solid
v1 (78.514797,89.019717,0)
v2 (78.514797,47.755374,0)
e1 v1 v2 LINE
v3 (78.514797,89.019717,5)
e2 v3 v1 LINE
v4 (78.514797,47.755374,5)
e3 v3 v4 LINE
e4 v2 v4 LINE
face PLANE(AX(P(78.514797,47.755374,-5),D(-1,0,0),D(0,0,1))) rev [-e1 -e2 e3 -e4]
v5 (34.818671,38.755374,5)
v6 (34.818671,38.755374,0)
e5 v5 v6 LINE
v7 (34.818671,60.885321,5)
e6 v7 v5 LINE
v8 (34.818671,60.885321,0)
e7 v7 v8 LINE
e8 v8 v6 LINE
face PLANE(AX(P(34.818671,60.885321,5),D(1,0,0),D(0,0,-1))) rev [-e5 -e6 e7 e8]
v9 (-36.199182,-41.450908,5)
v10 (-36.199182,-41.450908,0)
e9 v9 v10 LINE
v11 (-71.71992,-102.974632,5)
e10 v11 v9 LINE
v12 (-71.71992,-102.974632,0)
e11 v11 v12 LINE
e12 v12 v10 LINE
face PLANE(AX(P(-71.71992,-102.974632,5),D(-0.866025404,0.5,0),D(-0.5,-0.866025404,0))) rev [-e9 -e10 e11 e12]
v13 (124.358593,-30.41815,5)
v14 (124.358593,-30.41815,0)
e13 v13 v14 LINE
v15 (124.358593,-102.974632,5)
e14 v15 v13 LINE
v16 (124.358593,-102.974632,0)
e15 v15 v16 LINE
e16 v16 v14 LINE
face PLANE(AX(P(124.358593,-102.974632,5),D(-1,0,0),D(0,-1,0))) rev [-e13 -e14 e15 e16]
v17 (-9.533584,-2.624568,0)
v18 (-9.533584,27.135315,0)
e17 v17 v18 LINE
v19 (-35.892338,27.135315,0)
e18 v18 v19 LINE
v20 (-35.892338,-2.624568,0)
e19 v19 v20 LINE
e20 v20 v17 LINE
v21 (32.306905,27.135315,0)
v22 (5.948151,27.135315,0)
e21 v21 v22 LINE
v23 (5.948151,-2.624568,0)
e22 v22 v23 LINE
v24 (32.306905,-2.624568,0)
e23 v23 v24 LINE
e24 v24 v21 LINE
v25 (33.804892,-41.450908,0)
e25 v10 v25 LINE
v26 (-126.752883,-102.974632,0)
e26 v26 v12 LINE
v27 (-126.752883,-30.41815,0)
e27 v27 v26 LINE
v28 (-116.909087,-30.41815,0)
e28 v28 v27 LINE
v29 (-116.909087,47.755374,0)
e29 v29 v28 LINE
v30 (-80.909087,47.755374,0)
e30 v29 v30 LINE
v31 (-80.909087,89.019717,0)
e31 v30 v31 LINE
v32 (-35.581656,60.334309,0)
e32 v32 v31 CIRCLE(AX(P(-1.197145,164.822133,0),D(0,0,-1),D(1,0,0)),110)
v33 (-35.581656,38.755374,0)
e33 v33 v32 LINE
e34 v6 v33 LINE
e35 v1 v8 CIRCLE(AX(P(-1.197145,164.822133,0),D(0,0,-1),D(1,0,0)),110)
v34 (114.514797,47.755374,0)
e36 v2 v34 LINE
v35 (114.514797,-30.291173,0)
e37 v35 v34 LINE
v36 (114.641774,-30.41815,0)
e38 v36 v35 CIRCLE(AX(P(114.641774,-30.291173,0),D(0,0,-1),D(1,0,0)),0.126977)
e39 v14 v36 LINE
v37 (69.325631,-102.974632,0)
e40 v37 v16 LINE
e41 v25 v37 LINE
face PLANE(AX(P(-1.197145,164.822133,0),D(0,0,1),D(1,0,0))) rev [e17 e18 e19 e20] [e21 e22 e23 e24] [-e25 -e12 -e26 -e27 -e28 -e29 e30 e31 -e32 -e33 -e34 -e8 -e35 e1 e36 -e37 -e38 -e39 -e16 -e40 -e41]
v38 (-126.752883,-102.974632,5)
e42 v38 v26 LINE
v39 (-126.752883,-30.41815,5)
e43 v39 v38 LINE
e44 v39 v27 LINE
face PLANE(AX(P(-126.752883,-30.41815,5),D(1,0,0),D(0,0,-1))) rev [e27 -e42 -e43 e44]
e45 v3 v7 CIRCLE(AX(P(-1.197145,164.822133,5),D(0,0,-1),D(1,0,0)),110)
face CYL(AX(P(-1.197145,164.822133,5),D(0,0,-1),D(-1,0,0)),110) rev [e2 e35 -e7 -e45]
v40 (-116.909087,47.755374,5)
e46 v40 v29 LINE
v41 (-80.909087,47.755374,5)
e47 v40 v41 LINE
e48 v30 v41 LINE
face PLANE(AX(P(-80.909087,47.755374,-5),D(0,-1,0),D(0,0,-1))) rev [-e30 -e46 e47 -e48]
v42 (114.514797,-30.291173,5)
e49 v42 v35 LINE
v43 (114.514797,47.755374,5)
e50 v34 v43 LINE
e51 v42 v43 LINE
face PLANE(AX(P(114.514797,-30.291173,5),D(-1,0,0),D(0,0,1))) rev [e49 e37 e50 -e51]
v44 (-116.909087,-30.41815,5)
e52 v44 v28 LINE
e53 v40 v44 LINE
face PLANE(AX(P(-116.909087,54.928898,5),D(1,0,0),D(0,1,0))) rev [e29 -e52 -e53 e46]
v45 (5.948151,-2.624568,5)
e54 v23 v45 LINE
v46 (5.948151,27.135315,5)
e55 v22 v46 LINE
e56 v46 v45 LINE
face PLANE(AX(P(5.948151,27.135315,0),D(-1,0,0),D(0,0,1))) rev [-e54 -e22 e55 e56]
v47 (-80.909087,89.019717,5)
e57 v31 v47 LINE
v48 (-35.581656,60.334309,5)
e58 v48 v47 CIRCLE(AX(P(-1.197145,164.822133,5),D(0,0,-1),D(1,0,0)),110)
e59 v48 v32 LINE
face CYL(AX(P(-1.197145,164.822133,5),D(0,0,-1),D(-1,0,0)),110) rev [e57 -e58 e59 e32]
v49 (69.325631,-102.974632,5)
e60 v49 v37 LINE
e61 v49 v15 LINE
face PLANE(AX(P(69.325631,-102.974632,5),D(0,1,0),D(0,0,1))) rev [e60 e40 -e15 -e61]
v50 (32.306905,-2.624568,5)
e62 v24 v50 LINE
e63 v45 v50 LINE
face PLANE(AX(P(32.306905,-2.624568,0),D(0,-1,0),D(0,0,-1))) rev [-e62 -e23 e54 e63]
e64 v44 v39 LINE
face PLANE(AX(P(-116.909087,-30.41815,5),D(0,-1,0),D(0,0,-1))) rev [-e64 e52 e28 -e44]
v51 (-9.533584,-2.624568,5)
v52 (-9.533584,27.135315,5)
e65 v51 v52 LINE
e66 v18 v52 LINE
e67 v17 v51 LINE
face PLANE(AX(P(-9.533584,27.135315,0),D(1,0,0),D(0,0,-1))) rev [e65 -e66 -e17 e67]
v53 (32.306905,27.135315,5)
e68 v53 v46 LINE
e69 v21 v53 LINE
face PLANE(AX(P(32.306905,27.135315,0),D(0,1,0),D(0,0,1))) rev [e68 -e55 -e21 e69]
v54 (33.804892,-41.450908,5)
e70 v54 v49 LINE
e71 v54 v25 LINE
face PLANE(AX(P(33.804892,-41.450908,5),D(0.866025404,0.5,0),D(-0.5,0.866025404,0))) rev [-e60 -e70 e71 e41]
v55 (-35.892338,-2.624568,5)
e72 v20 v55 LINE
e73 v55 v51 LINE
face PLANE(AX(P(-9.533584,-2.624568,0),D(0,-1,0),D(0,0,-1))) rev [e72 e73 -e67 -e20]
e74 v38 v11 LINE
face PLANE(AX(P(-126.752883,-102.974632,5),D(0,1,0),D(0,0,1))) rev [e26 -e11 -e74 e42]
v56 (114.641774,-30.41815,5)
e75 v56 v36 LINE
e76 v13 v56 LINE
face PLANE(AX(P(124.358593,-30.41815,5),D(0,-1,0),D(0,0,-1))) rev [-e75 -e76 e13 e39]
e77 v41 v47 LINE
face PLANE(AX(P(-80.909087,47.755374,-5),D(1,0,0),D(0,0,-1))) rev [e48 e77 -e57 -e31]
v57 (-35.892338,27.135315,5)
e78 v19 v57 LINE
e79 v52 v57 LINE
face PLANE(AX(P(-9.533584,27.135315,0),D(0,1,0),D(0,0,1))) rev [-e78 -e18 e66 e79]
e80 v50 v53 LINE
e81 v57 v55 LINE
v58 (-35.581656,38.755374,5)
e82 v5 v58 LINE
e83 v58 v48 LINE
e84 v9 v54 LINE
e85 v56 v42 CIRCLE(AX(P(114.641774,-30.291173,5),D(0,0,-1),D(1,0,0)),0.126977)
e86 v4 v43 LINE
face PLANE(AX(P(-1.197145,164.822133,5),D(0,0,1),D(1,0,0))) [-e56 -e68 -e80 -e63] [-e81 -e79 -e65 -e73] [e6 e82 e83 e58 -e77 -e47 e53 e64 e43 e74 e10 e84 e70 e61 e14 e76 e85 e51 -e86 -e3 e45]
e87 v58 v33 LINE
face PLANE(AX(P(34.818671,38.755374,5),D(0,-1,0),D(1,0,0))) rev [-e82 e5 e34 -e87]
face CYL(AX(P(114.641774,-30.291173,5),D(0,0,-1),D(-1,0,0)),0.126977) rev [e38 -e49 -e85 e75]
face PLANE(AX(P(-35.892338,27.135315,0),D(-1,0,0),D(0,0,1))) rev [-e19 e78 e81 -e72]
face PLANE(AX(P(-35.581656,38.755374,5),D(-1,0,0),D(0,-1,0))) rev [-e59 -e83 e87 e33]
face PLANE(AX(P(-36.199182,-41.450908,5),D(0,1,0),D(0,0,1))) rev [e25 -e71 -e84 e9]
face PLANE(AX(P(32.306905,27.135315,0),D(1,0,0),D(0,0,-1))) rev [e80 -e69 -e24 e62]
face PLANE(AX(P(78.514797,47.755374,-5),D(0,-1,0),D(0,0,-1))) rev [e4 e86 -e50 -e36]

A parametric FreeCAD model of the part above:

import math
import FreeCAD as App
import Part
import Sketcher

V = App.Vector
Q = App.Units.Quantity


def add_polygon(sketch, points):
    """Adds a closed chain of lines whose ends are joined by coincident constraints."""
    first, n = sketch.GeometryCount, len(points)
    for a, b in zip(points, points[1:] + points[:1]):
        sketch.addGeometry(Part.LineSegment(App.Vector(*a, 0), App.Vector(*b, 0)), False)
    for i in range(n):
        sketch.addConstraint(Sketcher.Constraint("Coincident", first + i, 2, first + (i + 1) % n, 1))

doc = App.newDocument("Part")
body = doc.addObject("PartDesign::Body", "Body")

sketch1 = body.newObject("Sketcher::SketchObject", "Sketch")
sketch1.AttachmentSupport = (doc.getObject("XY_Plane"), [""])
sketch1.MapMode = "FlatFace"
sketch1.addGeometry([
    Part.LineSegment(V(-91.993743, 102.725613, 0), V(-126.729463, 102.725613, 0)),
    Part.LineSegment(V(-126.729463, 102.725613, 0), V(-126.746201, 82.983778, 0)),
    Part.LineSegment(V(-126.746201, 82.983778, 0), V(-126.751305, 69.550156, 0)),
    Part.LineSegment(V(-126.751305, 69.550156, 0), V(-126.751615, 54.928898, 0)),
    Part.LineSegment(V(-126.751615, 54.928898, 0), V(-116.909087, 54.928898, 0)),
    Part.LineSegment(V(-116.909087, 54.928898, 0), V(-116.909087, -30.41815, 0)),
    Part.LineSegment(V(-116.909087, -30.41815, 0), V(-126.752883, -30.41815, 0)),
    Part.LineSegment(V(-126.752883, -30.41815, 0), V(-126.752883, -102.974632, 0)),
    Part.LineSegment(V(-126.752883, -102.974632, 0), V(-71.71992, -102.974632, 0)),
    Part.LineSegment(V(-71.71992, -102.974632, 0), V(-36.199182, -41.450908, 0)),
    Part.LineSegment(V(-36.199182, -41.450908, 0), V(33.804892, -41.450908, 0)),
    Part.LineSegment(V(33.804892, -41.450908, 0), V(69.325631, -102.974632, 0)),
    Part.LineSegment(V(69.325631, -102.974632, 0), V(124.358593, -102.974632, 0)),
    Part.LineSegment(V(124.358593, -102.974632, 0), V(124.358593, -30.41815, 0)),
    Part.LineSegment(V(124.358593, -30.41815, 0), V(114.641774, -30.41815, 0)),
    Part.ArcOfCircle(Part.Circle(V(114.641774, -30.291173, 0), V(0, 0, 1), 0.126977), math.radians(180), math.radians(270)),
    Part.LineSegment(V(114.514797, -30.291173, 0), V(114.514797, 54.801921, 0)),
    Part.ArcOfCircle(Part.Circle(V(114.641774, 54.801921, 0), V(0, 0, 1), 0.126977), math.radians(90), math.radians(180)),
    Part.LineSegment(V(114.641774, 54.928898, 0), V(124.357325, 54.928898, 0)),
    Part.LineSegment(V(124.357325, 54.928898, 0), V(124.357015, 69.540093, 0)),
    Part.LineSegment(V(124.357015, 69.540093, 0), V(124.351902, 82.993835, 0)),
    Part.LineSegment(V(124.351902, 82.993835, 0), V(124.335173, 102.725613, 0)),
    Part.LineSegment(V(124.335173, 102.725613, 0), V(89.599453, 102.725613, 0)),
    Part.ArcOfCircle(Part.Circle(V(-1.197145, 164.822133, 0), V(0, 0, 1), 110), math.radians(-70.887957), math.radians(-34.368537)),
    Part.LineSegment(V(34.818671, 60.885321, 0), V(34.818671, 38.755374, 0)),
    Part.LineSegment(V(34.818671, 38.755374, 0), V(-35.581656, 38.755374, 0)),
    Part.LineSegment(V(-35.581656, 38.755374, 0), V(-35.581656, 60.334309, 0)),
    Part.ArcOfCircle(Part.Circle(V(-1.197145, 164.822133, 0), V(0, 0, 1), 110), math.radians(-145.631463), math.radians(-108.215172)),
], False)
sketch1.addConstraint([
    Sketcher.Constraint("Coincident", 0, 2, 1, 1),
    Sketcher.Constraint("Coincident", 1, 2, 2, 1),
    Sketcher.Constraint("Coincident", 2, 2, 3, 1),
    Sketcher.Constraint("Coincident", 3, 2, 4, 1),
    Sketcher.Constraint("Coincident", 4, 2, 5, 1),
    Sketcher.Constraint("Coincident", 5, 2, 6, 1),
    Sketcher.Constraint("Coincident", 6, 2, 7, 1),
    Sketcher.Constraint("Coincident", 7, 2, 8, 1),
    Sketcher.Constraint("Coincident", 8, 2, 9, 1),
    Sketcher.Constraint("Coincident", 9, 2, 10, 1),
    Sketcher.Constraint("Coincident", 10, 2, 11, 1),
    Sketcher.Constraint("Coincident", 11, 2, 12, 1),
    Sketcher.Constraint("Coincident", 12, 2, 13, 1),
    Sketcher.Constraint("Coincident", 13, 2, 14, 1),
    Sketcher.Constraint("Tangent", 14, 2, 15, 2),
    Sketcher.Constraint("Tangent", 15, 1, 16, 1),
    Sketcher.Constraint("Tangent", 16, 2, 17, 2),
    Sketcher.Constraint("Tangent", 17, 1, 18, 1),
    Sketcher.Constraint("Coincident", 18, 2, 19, 1),
    Sketcher.Constraint("Coincident", 19, 2, 20, 1),
    Sketcher.Constraint("Coincident", 20, 2, 21, 1),
    Sketcher.Constraint("Coincident", 21, 2, 22, 1),
    Sketcher.Constraint("Coincident", 22, 2, 23, 2),
    Sketcher.Constraint("Coincident", 23, 1, 24, 1),
    Sketcher.Constraint("Coincident", 24, 2, 25, 1),
    Sketcher.Constraint("Coincident", 25, 2, 26, 1),
    Sketcher.Constraint("Coincident", 26, 2, 27, 2),
    Sketcher.Constraint("Coincident", 27, 1, 0, 1),
    Sketcher.Constraint("Horizontal", 0),
    Sketcher.Constraint("Horizontal", 4),
    Sketcher.Constraint("Vertical", 5),
    Sketcher.Constraint("Horizontal", 6),
    Sketcher.Constraint("Vertical", 7),
    Sketcher.Constraint("Horizontal", 8),
    Sketcher.Constraint("Horizontal", 10),
    Sketcher.Constraint("Horizontal", 12),
    Sketcher.Constraint("Vertical", 13),
    Sketcher.Constraint("Horizontal", 14),
    Sketcher.Constraint("Vertical", 16),
    Sketcher.Constraint("Horizontal", 18),
    Sketcher.Constraint("Horizontal", 22),
    Sketcher.Constraint("Vertical", 24),
    Sketcher.Constraint("Horizontal", 25),
    Sketcher.Constraint("Vertical", 26),
    Sketcher.Constraint("Coincident", 27, 3, 23, 3),
    Sketcher.Constraint("Equal", 15, 17),
    Sketcher.Constraint("Equal", 23, 27),
    Sketcher.Constraint("Horizontal", 8, 2, 11, 2),
    Sketcher.Constraint("Horizontal", 6, 2, 13, 2),
    Sketcher.Constraint("Horizontal", 4, 2, 17, 1),
    Sketcher.Constraint("Horizontal", 0, 2, 21, 2),
    Sketcher.Constraint("Equal", 8, 12),
    Sketcher.Constraint("Equal", 0, 22),
    Sketcher.Constraint("Equal", 9, 11),
    Sketcher.Constraint("Radius", 23, 110.0),
    Sketcher.Constraint("Angle", 9, Q("60 deg")),
    Sketcher.Constraint("Radius", 15, 0.126977),
    Sketcher.Constraint("DistanceX", 0, 2, 0, 1, 34.73572),
    Sketcher.Constraint("DistanceX", 4, 1, 4, 2, 9.842528),
    Sketcher.Constraint("DistanceX", 14, 2, 14, 1, 9.716819),
    Sketcher.Constraint("DistanceX", 18, 1, 18, 2, 9.715551),
    Sketcher.Constraint("DistanceY", 5, 2, 5, 1, 85.347048),
    Sketcher.Constraint("DistanceY", 7, 2, 7, 1, 72.556482),
    Sketcher.Constraint("DistanceX", 1, 2, -1, 1, 126.746201),
    Sketcher.Constraint("DistanceX", 6, 2, 9, 2, 90.553701),
    Sketcher.Constraint("DistanceX", 17, 1, 21, 2, 9.693399),
    Sketcher.Constraint("DistanceY", 16, 2, 23, 1, 6.0834),
    Sketcher.Constraint("Distance", 1, 19.741842),
    Sketcher.Constraint("DistanceX", 6, 2, 6, 1, 9.843796),
    Sketcher.Constraint("DistanceX", 8, 1, 8, 2, 55.032962),
    Sketcher.Constraint("DistanceX", 10, 1, 10, 2, 70.004073),
    Sketcher.Constraint("DistanceX", 25, 2, 25, 1, 70.400327),
    Sketcher.Constraint("DistanceY", 24, 2, 24, 1, 22.129947),
    Sketcher.Constraint("DistanceY", 26, 1, 26, 2, 21.578935),
    Sketcher.Constraint("DistanceY", -1, 1, 17, 3, 54.801921),
    Sketcher.Constraint("DistanceX", 8, 2, -1, 1, 71.71992),
    Sketcher.Constraint("DistanceX", -1, 1, 24, 2, 34.818671),
    Sketcher.Constraint("DistanceX", 2, 2, 23, 3, 125.55416),
    Sketcher.Constraint("DistanceX", 19, 2, 18, 2, 0.00031),
    Sketcher.Constraint("DistanceY", 19, 2, 20, 2, 13.453741),
    Sketcher.Constraint("DistanceX", 17, 1, 20, 2, 9.710128),
    Sketcher.Constraint("DistanceY", 20, 2, 21, 2, 19.731778),
    Sketcher.Constraint("Distance", 2, 13.433623),
])
pad1 = body.newObject("PartDesign::Pad", "Pad")
pad1.Profile = sketch1
pad1.Length = 5

sketch2 = body.newObject("Sketcher::SketchObject", "Sketch001")
sketch2.AttachmentSupport = (doc.getObject("XY_Plane"), [""])
sketch2.MapMode = "FlatFace"
sketch2.AttachmentOffset = App.Placement(V(0, 0, 5), App.Rotation())
add_polygon(sketch2, [(5.948151, 27.135315), (5.948151, -2.624568), (32.306905, -2.624568), (32.306905, 27.135315)])
add_polygon(sketch2, [(-35.892338, 27.135315), (-35.892338, -2.624568), (-9.533585, -2.624568), (-9.533585, 27.135315)])
sketch2.addConstraint([
    Sketcher.Constraint("Vertical", 0),
    Sketcher.Constraint("Horizontal", 1),
    Sketcher.Constraint("Vertical", 2),
    Sketcher.Constraint("Horizontal", 3),
    Sketcher.Constraint("Vertical", 4),
    Sketcher.Constraint("Horizontal", 5),
    Sketcher.Constraint("Vertical", 6),
    Sketcher.Constraint("Horizontal", 7),
    Sketcher.Constraint("Horizontal", 1, 2, 4, 2),
    Sketcher.Constraint("Horizontal", 3, 2, 6, 2),
    Sketcher.Constraint("Equal", 3, 5),
    Sketcher.Constraint("DistanceX", 1, 1, 1, 2, 26.358753),
    Sketcher.Constraint("DistanceY", 0, 2, 0, 1, 29.759883),
    Sketcher.Constraint("DistanceX", -1, 1, 0, 2, 5.948151),
    Sketcher.Constraint("DistanceX", 4, 2, 0, 2, 41.840489),
    Sketcher.Constraint("DistanceY", 0, 2, -1, 1, 2.624568),
])
pocket1 = body.newObject("PartDesign::Pocket", "Pocket")
pocket1.Profile = sketch2
pocket1.Length = 5

sketch3 = body.newObject("Sketcher::SketchObject", "Sketch002")
sketch3.AttachmentSupport = (doc.getObject("XY_Plane"), [""])
sketch3.MapMode = "FlatFace"
sketch3.AttachmentOffset = App.Placement(V(0, 0, 5), App.Rotation())
add_polygon(sketch3, [(-126.729463, 110.755374), (-126.729463, 102.725613), (-91.993743, 102.725613), (-91.993743, 110.755374)])
add_polygon(sketch3, [(89.599453, 110.755374), (89.599453, 102.725613), (124.335173, 102.725613), (124.335173, 110.755374)])
sketch3.addConstraint([
    Sketcher.Constraint("Vertical", 0),
    Sketcher.Constraint("Horizontal", 1),
    Sketcher.Constraint("Vertical", 2),
    Sketcher.Constraint("Horizontal", 3),
    Sketcher.Constraint("Vertical", 4),
    Sketcher.Constraint("Horizontal", 5),
    Sketcher.Constraint("Vertical", 6),
    Sketcher.Constraint("Horizontal", 7),
    Sketcher.Constraint("Horizontal", 1, 2, 4, 2),
    Sketcher.Constraint("Horizontal", 3, 2, 6, 2),
    Sketcher.Constraint("Equal", 3, 5),
    Sketcher.Constraint("DistanceX", 1, 1, 1, 2, 34.73572),
    Sketcher.Constraint("DistanceY", 0, 2, 0, 1, 8.029761),
    Sketcher.Constraint("DistanceX", 0, 2, -1, 1, 126.729463),
    Sketcher.Constraint("DistanceY", -1, 1, 0, 2, 102.725613),
    Sketcher.Constraint("DistanceX", -1, 1, 4, 2, 89.599453),
])
pad2 = body.newObject("PartDesign::Pad", "Pad001")
pad2.Profile = sketch3
pad2.Length = 5
pad2.Reversed = True

sketch4 = body.newObject("Sketcher::SketchObject", "Sketch003")
sketch4.AttachmentSupport = (doc.getObject("XY_Plane"), [""])
sketch4.MapMode = "FlatFace"
sketch4.AttachmentOffset = App.Placement(V(0, 0, 5), App.Rotation())
add_polygon(sketch4, [(78.514797, 110.755374), (78.514797, 47.755374), (133.128845, 47.755374), (133.128845, 110.755374)])
add_polygon(sketch4, [(-136.228667, 110.755374), (-136.228667, 47.755374), (-80.909087, 47.755374), (-80.909087, 110.755374)])
sketch4.addConstraint([
    Sketcher.Constraint("Vertical", 0),
    Sketcher.Constraint("Horizontal", 1),
    Sketcher.Constraint("Vertical", 2),
    Sketcher.Constraint("Horizontal", 3),
    Sketcher.Constraint("Vertical", 4),
    Sketcher.Constraint("Horizontal", 5),
    Sketcher.Constraint("Vertical", 6),
    Sketcher.Constraint("Horizontal", 7),
    Sketcher.Constraint("Horizontal", 1, 2, 4, 2),
    Sketcher.Constraint("Horizontal", 3, 2, 6, 2),
    Sketcher.Constraint("DistanceY", 0, 2, 0, 1, 63.0),
    Sketcher.Constraint("DistanceX", 5, 1, 5, 2, 55.319581),
    Sketcher.Constraint("DistanceX", 1, 1, 1, 2, 54.614048),
    Sketcher.Constraint("DistanceX", 5, 2, 1, 2, 214.037932),
    Sketcher.Constraint("DistanceX", -1, 1, 0, 2, 78.514797),
    Sketcher.Constraint("DistanceY", -1, 1, 0, 2, 47.755374),
])
pocket2 = body.newObject("PartDesign::Pocket", "Pocket001")
pocket2.Profile = sketch4
pocket2.Length = 10

doc.recompute()
